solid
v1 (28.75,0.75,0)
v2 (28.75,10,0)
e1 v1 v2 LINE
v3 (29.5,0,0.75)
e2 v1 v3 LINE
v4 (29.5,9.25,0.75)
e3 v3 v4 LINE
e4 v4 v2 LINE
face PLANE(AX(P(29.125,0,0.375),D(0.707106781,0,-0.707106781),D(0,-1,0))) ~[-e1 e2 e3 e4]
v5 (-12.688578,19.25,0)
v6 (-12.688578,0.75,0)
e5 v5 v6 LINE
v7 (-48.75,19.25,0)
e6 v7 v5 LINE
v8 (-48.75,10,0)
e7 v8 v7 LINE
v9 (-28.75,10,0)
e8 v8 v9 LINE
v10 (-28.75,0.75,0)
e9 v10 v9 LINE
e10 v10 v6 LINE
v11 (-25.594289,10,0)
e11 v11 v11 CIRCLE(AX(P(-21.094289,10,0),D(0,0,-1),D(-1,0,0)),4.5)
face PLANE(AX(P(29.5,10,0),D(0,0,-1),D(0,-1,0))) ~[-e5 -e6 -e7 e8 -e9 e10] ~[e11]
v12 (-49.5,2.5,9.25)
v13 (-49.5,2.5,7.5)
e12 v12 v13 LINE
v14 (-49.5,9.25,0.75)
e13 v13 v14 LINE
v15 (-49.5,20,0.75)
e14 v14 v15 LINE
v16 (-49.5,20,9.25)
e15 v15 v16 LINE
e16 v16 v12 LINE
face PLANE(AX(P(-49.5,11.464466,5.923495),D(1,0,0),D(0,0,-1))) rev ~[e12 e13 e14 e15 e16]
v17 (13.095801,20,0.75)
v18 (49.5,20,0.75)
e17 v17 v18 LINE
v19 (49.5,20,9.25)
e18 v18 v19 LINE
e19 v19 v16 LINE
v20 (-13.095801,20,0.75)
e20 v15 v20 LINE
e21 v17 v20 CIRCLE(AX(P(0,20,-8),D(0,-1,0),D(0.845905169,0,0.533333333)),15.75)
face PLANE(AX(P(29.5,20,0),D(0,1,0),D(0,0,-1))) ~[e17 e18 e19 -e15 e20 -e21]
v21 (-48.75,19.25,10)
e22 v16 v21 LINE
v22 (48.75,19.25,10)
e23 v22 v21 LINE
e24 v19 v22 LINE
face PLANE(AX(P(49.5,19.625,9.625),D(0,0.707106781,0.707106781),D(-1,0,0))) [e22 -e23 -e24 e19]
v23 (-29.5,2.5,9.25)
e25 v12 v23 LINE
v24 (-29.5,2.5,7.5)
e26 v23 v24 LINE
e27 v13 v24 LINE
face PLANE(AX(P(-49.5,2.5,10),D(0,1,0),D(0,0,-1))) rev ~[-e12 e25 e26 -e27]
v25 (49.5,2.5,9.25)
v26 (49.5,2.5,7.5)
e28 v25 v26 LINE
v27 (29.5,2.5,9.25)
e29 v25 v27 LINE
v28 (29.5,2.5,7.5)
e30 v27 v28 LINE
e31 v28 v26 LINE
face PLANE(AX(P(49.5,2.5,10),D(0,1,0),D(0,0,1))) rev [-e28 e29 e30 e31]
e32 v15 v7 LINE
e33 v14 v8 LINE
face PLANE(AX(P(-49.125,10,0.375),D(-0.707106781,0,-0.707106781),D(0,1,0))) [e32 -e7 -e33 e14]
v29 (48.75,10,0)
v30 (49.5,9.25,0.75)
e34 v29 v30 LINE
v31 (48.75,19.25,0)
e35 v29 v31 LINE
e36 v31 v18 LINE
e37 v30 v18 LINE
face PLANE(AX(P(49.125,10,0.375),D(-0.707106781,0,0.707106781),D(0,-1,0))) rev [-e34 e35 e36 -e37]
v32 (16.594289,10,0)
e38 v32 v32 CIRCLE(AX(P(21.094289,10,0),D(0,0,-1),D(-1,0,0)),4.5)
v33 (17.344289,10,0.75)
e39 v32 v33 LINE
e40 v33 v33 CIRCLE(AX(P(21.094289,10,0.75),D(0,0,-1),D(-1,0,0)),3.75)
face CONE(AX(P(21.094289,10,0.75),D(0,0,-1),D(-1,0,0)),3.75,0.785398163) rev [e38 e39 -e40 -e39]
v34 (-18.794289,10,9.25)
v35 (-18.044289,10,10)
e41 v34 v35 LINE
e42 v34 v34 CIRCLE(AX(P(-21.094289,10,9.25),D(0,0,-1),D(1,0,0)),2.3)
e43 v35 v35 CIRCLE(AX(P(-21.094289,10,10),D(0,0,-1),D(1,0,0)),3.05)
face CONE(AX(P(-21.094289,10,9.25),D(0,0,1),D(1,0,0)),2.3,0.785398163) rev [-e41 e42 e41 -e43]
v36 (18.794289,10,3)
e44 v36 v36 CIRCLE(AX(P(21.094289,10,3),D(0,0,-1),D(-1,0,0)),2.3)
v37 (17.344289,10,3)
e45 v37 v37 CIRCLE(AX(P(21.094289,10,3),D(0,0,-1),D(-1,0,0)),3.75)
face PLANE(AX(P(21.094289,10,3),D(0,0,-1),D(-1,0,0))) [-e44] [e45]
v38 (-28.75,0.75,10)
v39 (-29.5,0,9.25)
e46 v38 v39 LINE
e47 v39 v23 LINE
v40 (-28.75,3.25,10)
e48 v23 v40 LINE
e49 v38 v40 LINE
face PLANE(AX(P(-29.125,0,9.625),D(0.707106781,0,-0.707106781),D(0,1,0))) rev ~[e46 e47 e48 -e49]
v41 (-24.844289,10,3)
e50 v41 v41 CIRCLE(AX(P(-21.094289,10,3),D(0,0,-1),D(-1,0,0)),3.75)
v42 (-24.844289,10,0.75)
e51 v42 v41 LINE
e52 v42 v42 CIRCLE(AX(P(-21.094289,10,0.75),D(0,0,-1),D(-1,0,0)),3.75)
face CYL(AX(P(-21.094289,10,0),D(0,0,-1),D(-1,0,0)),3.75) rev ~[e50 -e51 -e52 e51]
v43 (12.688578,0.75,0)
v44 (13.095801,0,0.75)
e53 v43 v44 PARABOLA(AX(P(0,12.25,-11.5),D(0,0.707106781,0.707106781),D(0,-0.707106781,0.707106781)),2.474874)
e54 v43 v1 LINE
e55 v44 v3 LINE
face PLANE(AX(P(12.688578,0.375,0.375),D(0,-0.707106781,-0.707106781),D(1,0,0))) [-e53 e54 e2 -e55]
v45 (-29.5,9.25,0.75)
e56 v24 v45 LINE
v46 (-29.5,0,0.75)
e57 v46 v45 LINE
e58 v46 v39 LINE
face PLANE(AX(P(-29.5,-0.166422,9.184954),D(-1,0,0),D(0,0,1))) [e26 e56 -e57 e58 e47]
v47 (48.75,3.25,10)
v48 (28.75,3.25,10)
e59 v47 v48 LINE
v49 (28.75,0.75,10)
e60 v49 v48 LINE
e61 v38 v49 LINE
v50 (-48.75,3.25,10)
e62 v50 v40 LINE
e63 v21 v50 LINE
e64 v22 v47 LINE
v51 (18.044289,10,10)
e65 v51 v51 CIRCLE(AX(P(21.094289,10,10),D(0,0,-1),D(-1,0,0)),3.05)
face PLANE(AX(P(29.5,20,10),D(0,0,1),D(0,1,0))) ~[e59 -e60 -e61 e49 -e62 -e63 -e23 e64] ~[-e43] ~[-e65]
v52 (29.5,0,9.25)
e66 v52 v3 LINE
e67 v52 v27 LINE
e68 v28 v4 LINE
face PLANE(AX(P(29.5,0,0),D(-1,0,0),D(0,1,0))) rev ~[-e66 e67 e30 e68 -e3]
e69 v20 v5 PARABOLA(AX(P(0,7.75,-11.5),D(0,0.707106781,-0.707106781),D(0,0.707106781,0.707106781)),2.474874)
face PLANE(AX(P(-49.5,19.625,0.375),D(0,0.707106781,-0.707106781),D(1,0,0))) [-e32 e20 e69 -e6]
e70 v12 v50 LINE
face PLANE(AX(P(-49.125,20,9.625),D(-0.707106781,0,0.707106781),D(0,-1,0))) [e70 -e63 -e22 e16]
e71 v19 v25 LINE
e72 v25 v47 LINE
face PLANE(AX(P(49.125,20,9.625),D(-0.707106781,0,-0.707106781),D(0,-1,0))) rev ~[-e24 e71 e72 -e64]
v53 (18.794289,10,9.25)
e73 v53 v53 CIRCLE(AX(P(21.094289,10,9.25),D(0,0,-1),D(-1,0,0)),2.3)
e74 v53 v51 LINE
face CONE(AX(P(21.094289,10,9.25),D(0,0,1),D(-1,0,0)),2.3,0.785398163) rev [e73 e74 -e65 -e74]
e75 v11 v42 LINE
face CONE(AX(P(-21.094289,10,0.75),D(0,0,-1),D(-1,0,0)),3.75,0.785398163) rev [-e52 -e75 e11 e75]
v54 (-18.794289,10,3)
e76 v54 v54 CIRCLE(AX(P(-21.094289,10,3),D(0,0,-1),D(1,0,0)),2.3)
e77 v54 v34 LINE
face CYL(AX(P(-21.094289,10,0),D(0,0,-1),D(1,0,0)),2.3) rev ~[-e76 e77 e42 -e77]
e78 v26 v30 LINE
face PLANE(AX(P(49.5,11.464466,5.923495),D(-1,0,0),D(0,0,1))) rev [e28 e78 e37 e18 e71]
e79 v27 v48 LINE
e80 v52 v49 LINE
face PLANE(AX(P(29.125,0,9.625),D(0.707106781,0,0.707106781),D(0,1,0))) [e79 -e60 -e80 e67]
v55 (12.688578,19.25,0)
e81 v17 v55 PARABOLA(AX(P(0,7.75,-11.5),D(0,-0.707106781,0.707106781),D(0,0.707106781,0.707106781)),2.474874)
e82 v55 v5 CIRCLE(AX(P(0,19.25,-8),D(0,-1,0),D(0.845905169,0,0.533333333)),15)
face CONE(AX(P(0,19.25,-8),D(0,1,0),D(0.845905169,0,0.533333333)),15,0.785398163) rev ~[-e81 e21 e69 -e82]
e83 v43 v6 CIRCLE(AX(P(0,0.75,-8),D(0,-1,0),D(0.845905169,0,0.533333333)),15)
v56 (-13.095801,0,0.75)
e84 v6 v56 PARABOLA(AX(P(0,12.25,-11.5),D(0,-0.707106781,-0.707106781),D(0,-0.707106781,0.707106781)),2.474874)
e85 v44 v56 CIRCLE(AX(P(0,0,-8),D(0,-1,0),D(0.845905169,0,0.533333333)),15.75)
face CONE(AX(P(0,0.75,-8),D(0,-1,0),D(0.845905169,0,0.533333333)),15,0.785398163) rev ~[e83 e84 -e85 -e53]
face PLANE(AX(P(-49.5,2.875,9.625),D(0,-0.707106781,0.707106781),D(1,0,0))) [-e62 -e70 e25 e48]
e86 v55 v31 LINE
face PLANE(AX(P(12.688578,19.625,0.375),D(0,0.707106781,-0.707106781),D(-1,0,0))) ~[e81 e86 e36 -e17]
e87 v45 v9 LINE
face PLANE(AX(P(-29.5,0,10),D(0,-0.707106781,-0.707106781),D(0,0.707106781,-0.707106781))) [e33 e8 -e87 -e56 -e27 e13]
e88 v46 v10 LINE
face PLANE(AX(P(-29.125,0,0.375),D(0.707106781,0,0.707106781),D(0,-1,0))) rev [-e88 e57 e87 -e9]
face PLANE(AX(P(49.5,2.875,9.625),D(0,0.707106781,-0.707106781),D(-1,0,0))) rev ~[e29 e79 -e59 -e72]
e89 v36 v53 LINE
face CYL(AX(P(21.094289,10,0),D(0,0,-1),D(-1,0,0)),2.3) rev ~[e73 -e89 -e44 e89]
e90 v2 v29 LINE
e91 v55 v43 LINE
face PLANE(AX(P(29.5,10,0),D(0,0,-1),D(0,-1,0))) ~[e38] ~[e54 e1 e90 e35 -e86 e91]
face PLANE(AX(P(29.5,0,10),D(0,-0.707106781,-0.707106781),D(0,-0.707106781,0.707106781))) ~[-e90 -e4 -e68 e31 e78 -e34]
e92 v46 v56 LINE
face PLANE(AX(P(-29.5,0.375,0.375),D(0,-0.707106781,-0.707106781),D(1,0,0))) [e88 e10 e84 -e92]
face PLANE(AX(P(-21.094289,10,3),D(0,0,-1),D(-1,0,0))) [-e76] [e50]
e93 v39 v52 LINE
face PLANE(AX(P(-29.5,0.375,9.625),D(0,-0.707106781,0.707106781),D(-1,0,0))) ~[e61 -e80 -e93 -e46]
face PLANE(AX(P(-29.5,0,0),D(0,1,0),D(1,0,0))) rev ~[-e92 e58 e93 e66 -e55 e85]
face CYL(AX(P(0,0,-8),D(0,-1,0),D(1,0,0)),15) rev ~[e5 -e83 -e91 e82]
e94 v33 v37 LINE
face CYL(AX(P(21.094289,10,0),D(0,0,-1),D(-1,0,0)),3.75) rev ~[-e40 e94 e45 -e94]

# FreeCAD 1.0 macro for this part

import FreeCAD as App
import Part
import Sketcher

V = App.Vector
Q = App.Units.Quantity


def edges_at(feature, points):
    """Names of the edges that pass closest to the given points."""
    edges = feature.Shape.Edges
    near = lambda p: min(range(len(edges)), key=lambda i: edges[i].distToShape(Part.Vertex(*p))[0])
    return sorted({f"Edge{near(p) + 1}" for p in points})


def add_polygon(sketch, points):
    """Adds a closed chain of lines whose ends are joined by coincident constraints."""
    first, n = sketch.GeometryCount, len(points)
    for a, b in zip(points, points[1:] + points[:1]):
        sketch.addGeometry(Part.LineSegment(App.Vector(*a, 0), App.Vector(*b, 0)), False)
    for i in range(n):
        sketch.addConstraint(Sketcher.Constraint("Coincident", first + i, 2, first + (i + 1) % n, 1))

doc = App.newDocument("Part")
body = doc.addObject("PartDesign::Body", "Body")

# Sketch on XY plane
sketch1 = doc.addObject("Sketcher::SketchObject", "Sketch")
body.addObject(sketch1)
sketch1.AttachmentSupport = (doc.XY_Plane, [""])
sketch1.MapMode = "FlatFace"
add_polygon(sketch1, [(-30, 20), (-30, 0), (30, 0), (30, 20)])  # lines 0-3
sketch1.addConstraint(Sketcher.Constraint("Vertical", 0))
sketch1.addConstraint(Sketcher.Constraint("Horizontal", 1))
sketch1.addConstraint(Sketcher.Constraint("Vertical", 2))
sketch1.addConstraint(Sketcher.Constraint("Horizontal", 3))
sketch1.addConstraint(Sketcher.Constraint("Symmetric", 0, 2, 1, 2, -1, 1))
sketch1.addConstraint(Sketcher.Constraint("DistanceX", 1, 1, 1, 2, Q("59 mm")))
sketch1.addConstraint(Sketcher.Constraint("DistanceY", 0, 2, 0, 1, Q("20 mm")))
pad1 = doc.addObject("PartDesign::Pad", "Pad")
body.addObject(pad1)
pad1.Profile = sketch1
pad1.Length = 10

# Sketch on YZ plane
sketch2 = doc.addObject("Sketcher::SketchObject", "Sketch001")
body.addObject(sketch2)
sketch2.AttachmentSupport = (doc.YZ_Plane, [""])
sketch2.MapMode = "FlatFace"
sketch2.AttachmentOffset = App.Placement(V(0, 0, -29.5), App.Rotation())
add_polygon(sketch2, [(10, 0), (0, 10), (20, 10), (20, 0)])  # lines 0-3
sketch2.addConstraint(Sketcher.Constraint("Horizontal", 1))
sketch2.addConstraint(Sketcher.Constraint("Vertical", 2))
sketch2.addConstraint(Sketcher.Constraint("Horizontal", 3))
sketch2.addConstraint(Sketcher.Constraint("PointOnObject", 0, 2, -2))
sketch2.addConstraint(Sketcher.Constraint("PointOnObject", 2, 2, -1))
sketch2.addConstraint(Sketcher.Constraint("Equal", 3, 2))
sketch2.addConstraint(Sketcher.Constraint("DistanceX", 1, 1, 1, 2, Q("20 mm")))
sketch2.addConstraint(Sketcher.Constraint("DistanceX", 3, 2, 3, 1, Q("10 mm")))
pad2 = doc.addObject("PartDesign::Pad", "Pad001")
body.addObject(pad2)
pad2.Profile = sketch2
pad2.Length = 20
pad2.Reversed = True
doc.recompute()

mirrored = doc.addObject("PartDesign::Mirrored", "Mirrored")
body.addObject(mirrored)
mirrored.Originals = [pad2]
mirrored.MirrorPlane = (doc.YZ_Plane, [""])
body.Tip = mirrored

# Sketch on XZ plane
sketch3 = doc.addObject("Sketcher::SketchObject", "Sketch002")
body.addObject(sketch3)
sketch3.AttachmentSupport = (doc.XZ_Plane, [""])
sketch3.MapMode = "FlatFace"
sketch3.addGeometry(Part.Circle(V(0, -8, 0), V(0, 0, 1), 15), False)
sketch3.addConstraint(Sketcher.Constraint("PointOnObject", 0, 3, -2))
sketch3.addConstraint(Sketcher.Constraint("Diameter", 0, Q("30 mm")))
sketch3.addConstraint(Sketcher.Constraint("DistanceY", 0, 3, -1, 1, Q("8 mm")))
pocket1 = doc.addObject("PartDesign::Pocket", "Pocket")
body.addObject(pocket1)
pocket1.Profile = sketch3
pocket1.Length = 20

# Sketch on XY plane
sketch4 = doc.addObject("Sketcher::SketchObject", "Sketch003")
body.addObject(sketch4)
sketch4.AttachmentSupport = (doc.XY_Plane, [""])
sketch4.MapMode = "FlatFace"
sketch4.addGeometry(Part.Circle(V(21.1, 10, 0), V(0, 0, 1), 2.3), False)
sketch4.addGeometry(Part.Circle(V(-21.1, 10, 0), V(0, 0, 1), 2.3), False)
sketch4.addConstraint(Sketcher.Constraint("Equal", 0, 1))
sketch4.addConstraint(Sketcher.Constraint("Symmetric", 0, 3, 1, 3, -2))
sketch4.addConstraint(Sketcher.Constraint("Diameter", 0, Q("4.6 mm")))
sketch4.addConstraint(Sketcher.Constraint("DistanceY", -1, 1, 0, 3, Q("10 mm")))
sketch4.addConstraint(Sketcher.Constraint("DistanceX", -1, 1, 0, 3, Q("21.094289 mm")))
pocket2 = doc.addObject("PartDesign::Pocket", "Pocket001")
body.addObject(pocket2)
pocket2.Profile = sketch4
pocket2.Length = 20
pocket2.Reversed = True

# Sketch on XY plane
sketch5 = doc.addObject("Sketcher::SketchObject", "Sketch004")
body.addObject(sketch5)
sketch5.AttachmentSupport = (doc.XY_Plane, [""])
sketch5.MapMode = "FlatFace"
sketch5.addGeometry(Part.Circle(V(21.1, 10, 0), V(0, 0, 1), 3.8), False)
sketch5.addGeometry(Part.Circle(V(-21.1, 10, 0), V(0, 0, 1), 3.8), False)
sketch5.addConstraint(Sketcher.Constraint("Equal", 0, 1))
sketch5.addConstraint(Sketcher.Constraint("Symmetric", 0, 3, 1, 3, -2))
sketch5.addConstraint(Sketcher.Constraint("Diameter", 0, Q("7.5 mm")))
sketch5.addConstraint(Sketcher.Constraint("DistanceY", -1, 1, 0, 3, Q("10 mm")))
sketch5.addConstraint(Sketcher.Constraint("DistanceX", -1, 1, 0, 3, Q("21.094289 mm")))
pocket3 = doc.addObject("PartDesign::Pocket", "Pocket002")
body.addObject(pocket3)
pocket3.Profile = sketch5
pocket3.Length = 3
pocket3.Reversed = True

# Sketch on YZ plane
sketch6 = doc.addObject("Sketcher::SketchObject", "Sketch005")
body.addObject(sketch6)
sketch6.AttachmentSupport = (doc.YZ_Plane, [""])
sketch6.MapMode = "FlatFace"
sketch6.AttachmentOffset = App.Placement(V(0, 0, -49.5), App.Rotation())
add_polygon(sketch6, [(2.5, 10), (2.5, 4.9), (-2.7, 4.9), (-2.8, 13.6), (2.2, 13.6)])  # lines 0-4
sketch6.addConstraint(Sketcher.Constraint("Vertical", 0))
sketch6.addConstraint(Sketcher.Constraint("Horizontal", 1))
sketch6.addConstraint(Sketcher.Constraint("Horizontal", 3))
sketch6.addConstraint(Sketcher.Constraint("DistanceY", -1, 1, 4, 2, Q("10 mm")))
sketch6.addConstraint(Sketcher.Constraint("DistanceX", -1, 1, 0, 2, Q("2.5 mm")))
sketch6.addConstraint(Sketcher.Constraint("DistanceX", 3, 1, 3, 2, Q("4.93913 mm")))
sketch6.addConstraint(Sketcher.Constraint("DistanceX", 2, 2, 1, 2, Q("0.119501 mm")))
sketch6.addConstraint(Sketcher.Constraint("DistanceX", 1, 2, 1, 1, Q("5.168604 mm")))
sketch6.addConstraint(Sketcher.Constraint("DistanceY", 0, 2, 0, 1, Q("5.147395 mm")))
sketch6.addConstraint(Sketcher.Constraint("DistanceY", -1, 1, 2, 2, Q("13.586779 mm")))
pocket4 = doc.addObject("PartDesign::Pocket", "Pocket003")
body.addObject(pocket4)
pocket4.Profile = sketch6
pocket4.Length = 20
pocket4.Reversed = True
doc.recompute()

mirrored2 = doc.addObject("PartDesign::Mirrored", "Mirrored001")
body.addObject(mirrored2)
mirrored2.Originals = [pocket4]
mirrored2.MirrorPlane = (doc.YZ_Plane, [""])
body.Tip = mirrored2
doc.recompute()

chamfer = doc.addObject("PartDesign::Chamfer", "Chamfer")
body.addObject(chamfer)
chamfer.Base = (mirrored2, edges_at(mirrored2, [
    (39.5, 2.5, 10),
    (29.5, 1.25, 10),
    (0, 0, 10),
    (-29.5, 5, 0),
    (-49.5, 15, 0),
    (49.5, 15, 0),
    (-31.094, 20, 0),
    (21.094, 0, 0),
    (0, 20, 7),
    (0, 0, 7),
    (0, 20, 10),
    (29.5, 5, 0),
    (23.394, 10, 10),
    (-21.094, 0, 0),
    (-23.394, 10, 10),
    (31.094, 20, 0),
    (24.844, 10, 0),
    (-17.344, 10, 0),
    (-49.5, 11.25, 10),
    (-39.5, 2.5, 10),
    (-29.5, 1.25, 10),
    (49.5, 11.25, 10),
]))
chamfer.Size = 0.75

doc.recompute()
